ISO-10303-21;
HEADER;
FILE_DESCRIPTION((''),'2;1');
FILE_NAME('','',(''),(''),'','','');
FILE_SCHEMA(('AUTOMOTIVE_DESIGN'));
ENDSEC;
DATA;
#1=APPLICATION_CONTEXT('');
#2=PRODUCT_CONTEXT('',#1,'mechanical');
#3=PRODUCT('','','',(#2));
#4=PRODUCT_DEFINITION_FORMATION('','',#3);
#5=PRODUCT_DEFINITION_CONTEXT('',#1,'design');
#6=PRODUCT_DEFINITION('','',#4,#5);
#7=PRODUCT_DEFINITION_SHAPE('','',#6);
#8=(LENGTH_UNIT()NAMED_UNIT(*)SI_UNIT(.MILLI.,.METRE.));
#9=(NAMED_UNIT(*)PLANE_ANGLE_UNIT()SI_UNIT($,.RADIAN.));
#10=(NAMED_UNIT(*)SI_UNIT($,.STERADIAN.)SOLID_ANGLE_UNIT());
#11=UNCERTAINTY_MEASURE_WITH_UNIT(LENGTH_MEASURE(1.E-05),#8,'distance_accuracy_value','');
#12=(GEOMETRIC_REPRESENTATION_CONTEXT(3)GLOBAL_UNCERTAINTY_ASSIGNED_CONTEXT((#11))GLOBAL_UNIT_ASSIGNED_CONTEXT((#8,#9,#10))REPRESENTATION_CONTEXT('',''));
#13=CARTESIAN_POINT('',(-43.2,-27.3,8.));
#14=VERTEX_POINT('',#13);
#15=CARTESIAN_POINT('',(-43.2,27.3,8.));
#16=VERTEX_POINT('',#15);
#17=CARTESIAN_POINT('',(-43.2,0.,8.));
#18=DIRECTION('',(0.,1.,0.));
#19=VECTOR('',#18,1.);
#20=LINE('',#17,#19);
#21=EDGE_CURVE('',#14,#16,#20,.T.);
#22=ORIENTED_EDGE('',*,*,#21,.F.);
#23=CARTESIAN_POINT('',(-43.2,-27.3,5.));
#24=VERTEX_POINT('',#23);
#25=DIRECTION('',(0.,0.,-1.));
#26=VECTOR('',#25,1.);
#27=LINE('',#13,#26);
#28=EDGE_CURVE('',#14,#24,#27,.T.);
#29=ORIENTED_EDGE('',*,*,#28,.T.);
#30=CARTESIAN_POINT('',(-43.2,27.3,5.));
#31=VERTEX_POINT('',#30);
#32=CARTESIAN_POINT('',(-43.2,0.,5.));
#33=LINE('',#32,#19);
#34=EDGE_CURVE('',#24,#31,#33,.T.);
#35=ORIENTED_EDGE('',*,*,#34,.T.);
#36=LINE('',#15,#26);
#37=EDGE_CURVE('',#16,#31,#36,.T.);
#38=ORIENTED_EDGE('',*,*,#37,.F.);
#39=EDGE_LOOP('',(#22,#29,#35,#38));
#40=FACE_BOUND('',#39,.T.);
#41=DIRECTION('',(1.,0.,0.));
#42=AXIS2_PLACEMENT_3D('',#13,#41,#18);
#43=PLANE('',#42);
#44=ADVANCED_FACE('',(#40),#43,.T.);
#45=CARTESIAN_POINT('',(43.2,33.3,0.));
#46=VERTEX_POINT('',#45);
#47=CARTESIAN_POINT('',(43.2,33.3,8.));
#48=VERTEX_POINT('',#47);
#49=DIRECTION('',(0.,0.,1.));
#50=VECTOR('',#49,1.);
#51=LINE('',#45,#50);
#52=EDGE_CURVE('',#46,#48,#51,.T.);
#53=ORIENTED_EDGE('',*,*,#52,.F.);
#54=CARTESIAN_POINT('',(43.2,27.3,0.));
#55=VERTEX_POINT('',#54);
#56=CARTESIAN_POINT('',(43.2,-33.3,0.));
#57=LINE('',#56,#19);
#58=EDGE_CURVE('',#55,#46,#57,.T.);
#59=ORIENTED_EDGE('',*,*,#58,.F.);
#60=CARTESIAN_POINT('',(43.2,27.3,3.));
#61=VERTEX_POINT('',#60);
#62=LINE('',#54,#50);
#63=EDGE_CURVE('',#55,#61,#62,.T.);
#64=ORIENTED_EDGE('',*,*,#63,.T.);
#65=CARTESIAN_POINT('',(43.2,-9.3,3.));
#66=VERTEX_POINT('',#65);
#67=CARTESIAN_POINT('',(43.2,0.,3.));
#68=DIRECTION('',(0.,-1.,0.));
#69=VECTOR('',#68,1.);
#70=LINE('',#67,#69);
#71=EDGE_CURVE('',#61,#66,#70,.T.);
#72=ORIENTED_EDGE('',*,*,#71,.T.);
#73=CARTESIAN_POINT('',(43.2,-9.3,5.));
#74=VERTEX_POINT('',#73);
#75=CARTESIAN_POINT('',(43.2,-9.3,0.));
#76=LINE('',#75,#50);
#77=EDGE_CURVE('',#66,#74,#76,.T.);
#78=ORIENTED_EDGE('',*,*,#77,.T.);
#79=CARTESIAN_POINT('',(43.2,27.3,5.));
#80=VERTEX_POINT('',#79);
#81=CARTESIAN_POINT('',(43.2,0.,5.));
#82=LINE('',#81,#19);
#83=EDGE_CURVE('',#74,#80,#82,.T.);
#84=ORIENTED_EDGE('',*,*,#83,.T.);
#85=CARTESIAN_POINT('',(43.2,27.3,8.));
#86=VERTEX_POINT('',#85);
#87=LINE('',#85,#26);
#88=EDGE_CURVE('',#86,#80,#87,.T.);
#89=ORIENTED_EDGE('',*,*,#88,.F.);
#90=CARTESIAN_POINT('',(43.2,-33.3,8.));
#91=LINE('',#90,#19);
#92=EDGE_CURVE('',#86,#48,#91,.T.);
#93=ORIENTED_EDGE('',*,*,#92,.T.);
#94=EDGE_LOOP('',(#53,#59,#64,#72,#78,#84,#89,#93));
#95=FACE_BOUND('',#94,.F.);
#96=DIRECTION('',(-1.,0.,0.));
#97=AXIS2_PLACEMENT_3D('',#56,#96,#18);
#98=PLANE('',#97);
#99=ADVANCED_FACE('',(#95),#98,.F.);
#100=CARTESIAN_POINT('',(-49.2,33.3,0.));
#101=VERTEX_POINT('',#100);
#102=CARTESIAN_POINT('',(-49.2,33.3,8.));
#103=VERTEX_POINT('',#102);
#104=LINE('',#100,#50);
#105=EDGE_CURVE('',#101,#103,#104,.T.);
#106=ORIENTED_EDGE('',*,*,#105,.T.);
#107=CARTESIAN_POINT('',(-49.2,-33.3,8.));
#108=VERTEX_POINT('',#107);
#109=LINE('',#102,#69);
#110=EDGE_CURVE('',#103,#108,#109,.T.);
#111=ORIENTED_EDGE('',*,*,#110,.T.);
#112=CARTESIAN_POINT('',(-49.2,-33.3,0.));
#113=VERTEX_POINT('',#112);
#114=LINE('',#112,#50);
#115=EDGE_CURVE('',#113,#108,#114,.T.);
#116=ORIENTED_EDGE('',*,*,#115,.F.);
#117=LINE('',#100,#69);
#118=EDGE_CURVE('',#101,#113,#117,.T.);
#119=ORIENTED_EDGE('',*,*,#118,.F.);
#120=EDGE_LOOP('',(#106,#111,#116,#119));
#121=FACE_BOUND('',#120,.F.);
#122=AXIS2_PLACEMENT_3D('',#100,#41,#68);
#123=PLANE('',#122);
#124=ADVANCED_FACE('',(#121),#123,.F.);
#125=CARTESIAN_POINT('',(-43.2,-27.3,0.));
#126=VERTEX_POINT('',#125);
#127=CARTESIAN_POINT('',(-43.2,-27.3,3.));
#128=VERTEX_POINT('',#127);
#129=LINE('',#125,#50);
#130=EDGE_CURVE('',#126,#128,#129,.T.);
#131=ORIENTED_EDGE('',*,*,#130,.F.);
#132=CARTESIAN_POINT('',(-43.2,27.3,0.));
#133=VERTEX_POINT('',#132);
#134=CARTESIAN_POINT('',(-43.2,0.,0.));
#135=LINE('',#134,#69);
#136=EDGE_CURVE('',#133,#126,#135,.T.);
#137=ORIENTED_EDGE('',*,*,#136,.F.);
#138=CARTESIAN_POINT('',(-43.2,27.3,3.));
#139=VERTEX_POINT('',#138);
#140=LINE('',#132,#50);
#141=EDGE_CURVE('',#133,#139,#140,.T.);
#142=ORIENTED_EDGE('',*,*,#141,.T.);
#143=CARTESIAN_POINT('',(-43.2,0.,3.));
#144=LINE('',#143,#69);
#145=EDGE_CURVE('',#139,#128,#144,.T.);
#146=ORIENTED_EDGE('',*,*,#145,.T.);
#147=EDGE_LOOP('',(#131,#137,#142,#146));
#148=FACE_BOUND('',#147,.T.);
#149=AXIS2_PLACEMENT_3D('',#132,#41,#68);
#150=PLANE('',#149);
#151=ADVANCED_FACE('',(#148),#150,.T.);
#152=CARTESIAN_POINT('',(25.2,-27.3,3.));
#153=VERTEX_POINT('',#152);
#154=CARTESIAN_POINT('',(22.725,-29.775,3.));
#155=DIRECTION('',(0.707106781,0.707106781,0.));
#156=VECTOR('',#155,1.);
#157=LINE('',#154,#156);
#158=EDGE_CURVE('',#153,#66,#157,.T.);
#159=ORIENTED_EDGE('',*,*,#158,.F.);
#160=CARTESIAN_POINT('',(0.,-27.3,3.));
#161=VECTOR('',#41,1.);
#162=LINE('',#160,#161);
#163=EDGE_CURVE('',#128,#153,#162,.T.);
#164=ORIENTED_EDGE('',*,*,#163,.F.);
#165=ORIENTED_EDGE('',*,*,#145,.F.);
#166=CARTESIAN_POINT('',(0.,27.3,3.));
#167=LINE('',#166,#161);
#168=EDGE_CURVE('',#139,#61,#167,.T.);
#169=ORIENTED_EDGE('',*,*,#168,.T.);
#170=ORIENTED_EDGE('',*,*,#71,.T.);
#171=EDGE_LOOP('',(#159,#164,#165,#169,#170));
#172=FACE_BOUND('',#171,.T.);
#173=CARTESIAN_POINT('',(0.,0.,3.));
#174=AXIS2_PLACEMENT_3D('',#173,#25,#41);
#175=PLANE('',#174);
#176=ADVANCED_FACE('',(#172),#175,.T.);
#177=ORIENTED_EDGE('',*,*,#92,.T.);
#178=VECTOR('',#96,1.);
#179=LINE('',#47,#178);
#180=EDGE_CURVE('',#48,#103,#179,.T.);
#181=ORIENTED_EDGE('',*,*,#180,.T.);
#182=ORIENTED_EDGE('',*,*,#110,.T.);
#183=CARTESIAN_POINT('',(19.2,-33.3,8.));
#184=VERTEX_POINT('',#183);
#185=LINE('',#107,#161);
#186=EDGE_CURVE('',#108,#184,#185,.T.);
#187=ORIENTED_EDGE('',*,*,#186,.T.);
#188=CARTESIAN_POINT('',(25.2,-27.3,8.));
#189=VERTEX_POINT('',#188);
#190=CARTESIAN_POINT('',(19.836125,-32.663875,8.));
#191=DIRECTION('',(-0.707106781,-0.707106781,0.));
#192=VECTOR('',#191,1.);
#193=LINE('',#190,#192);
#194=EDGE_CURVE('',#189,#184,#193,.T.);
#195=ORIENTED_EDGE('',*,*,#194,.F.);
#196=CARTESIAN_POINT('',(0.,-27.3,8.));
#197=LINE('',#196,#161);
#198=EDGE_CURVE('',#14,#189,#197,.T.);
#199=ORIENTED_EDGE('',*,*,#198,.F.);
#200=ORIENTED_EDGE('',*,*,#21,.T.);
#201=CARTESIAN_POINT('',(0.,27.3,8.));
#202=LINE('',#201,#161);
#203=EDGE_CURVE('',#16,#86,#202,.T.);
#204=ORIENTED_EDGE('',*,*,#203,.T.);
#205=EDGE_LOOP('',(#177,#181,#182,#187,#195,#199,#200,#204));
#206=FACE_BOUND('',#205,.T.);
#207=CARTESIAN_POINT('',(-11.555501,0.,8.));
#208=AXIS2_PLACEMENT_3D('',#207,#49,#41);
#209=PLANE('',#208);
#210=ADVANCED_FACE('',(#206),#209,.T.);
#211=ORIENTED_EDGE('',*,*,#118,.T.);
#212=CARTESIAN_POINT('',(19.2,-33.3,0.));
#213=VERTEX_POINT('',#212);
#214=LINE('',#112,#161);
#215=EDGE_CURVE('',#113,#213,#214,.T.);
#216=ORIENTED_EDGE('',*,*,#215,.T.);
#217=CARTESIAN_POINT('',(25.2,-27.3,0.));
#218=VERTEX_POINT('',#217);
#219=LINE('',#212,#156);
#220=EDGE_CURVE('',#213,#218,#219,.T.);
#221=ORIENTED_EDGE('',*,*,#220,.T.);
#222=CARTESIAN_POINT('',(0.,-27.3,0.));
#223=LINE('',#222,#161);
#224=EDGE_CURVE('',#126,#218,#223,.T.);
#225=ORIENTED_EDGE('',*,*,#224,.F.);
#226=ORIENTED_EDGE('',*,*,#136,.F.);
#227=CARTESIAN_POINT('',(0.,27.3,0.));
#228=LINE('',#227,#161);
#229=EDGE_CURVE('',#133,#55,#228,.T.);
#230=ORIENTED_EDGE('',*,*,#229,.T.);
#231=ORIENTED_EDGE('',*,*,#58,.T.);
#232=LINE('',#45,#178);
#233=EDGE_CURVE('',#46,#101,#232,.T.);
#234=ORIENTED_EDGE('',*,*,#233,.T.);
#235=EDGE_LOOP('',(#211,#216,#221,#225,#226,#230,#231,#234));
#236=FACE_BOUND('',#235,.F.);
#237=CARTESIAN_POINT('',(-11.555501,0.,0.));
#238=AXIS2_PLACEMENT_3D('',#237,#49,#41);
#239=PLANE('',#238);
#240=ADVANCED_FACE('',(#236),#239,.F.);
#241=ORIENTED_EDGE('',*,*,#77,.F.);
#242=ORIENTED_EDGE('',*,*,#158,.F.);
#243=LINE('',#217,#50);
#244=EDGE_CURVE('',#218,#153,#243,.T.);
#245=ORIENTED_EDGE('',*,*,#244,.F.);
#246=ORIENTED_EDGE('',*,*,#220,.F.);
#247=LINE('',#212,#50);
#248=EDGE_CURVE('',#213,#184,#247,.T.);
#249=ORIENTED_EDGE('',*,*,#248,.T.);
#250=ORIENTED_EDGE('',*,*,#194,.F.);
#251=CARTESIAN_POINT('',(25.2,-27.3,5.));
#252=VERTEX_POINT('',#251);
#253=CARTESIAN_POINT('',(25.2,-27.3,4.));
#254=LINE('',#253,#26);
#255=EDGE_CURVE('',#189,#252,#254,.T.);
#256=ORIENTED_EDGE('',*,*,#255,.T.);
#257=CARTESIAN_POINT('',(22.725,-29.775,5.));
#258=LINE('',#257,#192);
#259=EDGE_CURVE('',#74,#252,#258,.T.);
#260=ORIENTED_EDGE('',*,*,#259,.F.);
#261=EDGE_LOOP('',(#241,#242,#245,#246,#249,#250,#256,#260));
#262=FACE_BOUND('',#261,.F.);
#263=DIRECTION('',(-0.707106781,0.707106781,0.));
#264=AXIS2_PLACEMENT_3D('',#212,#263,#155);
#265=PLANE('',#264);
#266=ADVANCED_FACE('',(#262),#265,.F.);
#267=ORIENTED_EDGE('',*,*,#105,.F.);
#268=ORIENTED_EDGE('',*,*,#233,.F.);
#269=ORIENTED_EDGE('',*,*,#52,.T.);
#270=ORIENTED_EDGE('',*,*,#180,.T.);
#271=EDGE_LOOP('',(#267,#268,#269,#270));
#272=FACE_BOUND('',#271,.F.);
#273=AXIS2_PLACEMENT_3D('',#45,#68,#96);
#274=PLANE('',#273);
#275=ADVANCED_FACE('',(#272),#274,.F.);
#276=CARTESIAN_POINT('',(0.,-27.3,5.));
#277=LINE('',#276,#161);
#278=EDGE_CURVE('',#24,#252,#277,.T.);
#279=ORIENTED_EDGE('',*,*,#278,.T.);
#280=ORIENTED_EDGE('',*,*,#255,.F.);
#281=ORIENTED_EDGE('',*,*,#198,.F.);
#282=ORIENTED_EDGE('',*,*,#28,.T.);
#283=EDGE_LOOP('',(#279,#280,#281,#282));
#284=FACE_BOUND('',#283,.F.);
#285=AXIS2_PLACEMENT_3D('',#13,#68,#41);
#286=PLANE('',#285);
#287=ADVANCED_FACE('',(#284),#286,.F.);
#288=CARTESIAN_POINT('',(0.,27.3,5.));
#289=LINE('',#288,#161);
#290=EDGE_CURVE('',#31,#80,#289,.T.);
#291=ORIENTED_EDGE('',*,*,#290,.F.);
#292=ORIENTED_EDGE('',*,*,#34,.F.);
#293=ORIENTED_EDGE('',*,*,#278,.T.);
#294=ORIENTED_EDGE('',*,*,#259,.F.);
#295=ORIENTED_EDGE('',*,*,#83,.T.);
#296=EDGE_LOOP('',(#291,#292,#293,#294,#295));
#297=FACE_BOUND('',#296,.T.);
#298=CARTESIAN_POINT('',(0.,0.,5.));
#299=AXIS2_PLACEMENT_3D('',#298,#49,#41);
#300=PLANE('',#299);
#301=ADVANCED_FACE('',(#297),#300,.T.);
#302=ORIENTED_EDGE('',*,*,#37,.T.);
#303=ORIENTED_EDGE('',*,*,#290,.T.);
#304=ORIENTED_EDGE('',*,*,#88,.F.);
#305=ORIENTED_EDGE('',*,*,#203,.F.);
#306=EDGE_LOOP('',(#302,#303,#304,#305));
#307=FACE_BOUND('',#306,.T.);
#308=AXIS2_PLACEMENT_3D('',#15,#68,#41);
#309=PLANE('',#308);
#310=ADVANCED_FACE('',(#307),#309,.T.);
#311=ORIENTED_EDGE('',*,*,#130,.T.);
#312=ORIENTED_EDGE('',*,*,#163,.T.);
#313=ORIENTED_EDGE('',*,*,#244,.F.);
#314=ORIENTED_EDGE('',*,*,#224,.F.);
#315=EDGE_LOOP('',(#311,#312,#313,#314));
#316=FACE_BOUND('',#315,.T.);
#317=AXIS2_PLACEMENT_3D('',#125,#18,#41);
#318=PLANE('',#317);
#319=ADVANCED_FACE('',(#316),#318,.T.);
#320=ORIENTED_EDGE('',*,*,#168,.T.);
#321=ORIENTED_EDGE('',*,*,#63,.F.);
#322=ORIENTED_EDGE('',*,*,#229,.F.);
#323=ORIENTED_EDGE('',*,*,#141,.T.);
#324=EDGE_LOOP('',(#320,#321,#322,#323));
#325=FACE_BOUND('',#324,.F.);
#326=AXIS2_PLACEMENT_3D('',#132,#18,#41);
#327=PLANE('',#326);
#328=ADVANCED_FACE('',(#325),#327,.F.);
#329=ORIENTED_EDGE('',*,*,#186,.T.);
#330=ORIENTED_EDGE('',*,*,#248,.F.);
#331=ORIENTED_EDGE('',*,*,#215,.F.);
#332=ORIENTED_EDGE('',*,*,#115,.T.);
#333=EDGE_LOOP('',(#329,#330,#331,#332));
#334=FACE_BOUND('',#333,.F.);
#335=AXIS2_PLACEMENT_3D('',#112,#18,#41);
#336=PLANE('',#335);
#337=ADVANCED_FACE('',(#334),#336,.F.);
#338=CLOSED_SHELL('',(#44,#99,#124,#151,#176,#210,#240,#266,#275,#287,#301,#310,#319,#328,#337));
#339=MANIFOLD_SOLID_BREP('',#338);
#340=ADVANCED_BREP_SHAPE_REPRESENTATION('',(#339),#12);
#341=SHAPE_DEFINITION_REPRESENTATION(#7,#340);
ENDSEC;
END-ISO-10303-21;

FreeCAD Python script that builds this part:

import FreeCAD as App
import Part
import Sketcher
from FreeCAD import Vector


def add_polygon(sketch, points):
    """Adds a closed chain of lines whose ends are joined by coincident constraints."""
    first, n = sketch.GeometryCount, len(points)
    for a, b in zip(points, points[1:] + points[:1]):
        sketch.addGeometry(Part.LineSegment(App.Vector(*a, 0), App.Vector(*b, 0)), False)
    for i in range(n):
        sketch.addConstraint(Sketcher.Constraint("Coincident", first + i, 2, first + (i + 1) % n, 1))

doc = App.newDocument("Part")
body = doc.addObject("PartDesign::Body", "Body")

# Sketch on XY plane
sketch1 = doc.addObject("Sketcher::SketchObject", "Sketch")
body.addObject(sketch1)
sketch1.AttachmentSupport = (doc.XY_Plane, [""])
sketch1.MapMode = "FlatFace"
add_polygon(sketch1, [(43, 33), (-49, 33), (-49, -33), (43, -33)])  # lines 0-3
sketch1.addConstraint([
    Sketcher.Constraint("Horizontal", 0),
    Sketcher.Constraint("Vertical", 1),
    Sketcher.Constraint("Horizontal", 2),
    Sketcher.Constraint("Vertical", 3),
    Sketcher.Constraint("DistanceX", 0, 2, 0, 1, 92.4),
    Sketcher.Constraint("DistanceY", 1, 2, 1, 1, 66.6),
    Sketcher.Constraint("DistanceX", 0, 2, -1, 1, 49.2),
    Sketcher.Constraint("DistanceY", -1, 1, 0, 2, 33.3),
])
pad1 = doc.addObject("PartDesign::Pad", "Pad")
body.addObject(pad1)
pad1.Profile = sketch1
pad1.Length = 8

# Sketch on XY plane
sketch2 = doc.addObject("Sketcher::SketchObject", "Sketch001")
body.addObject(sketch2)
sketch2.AttachmentSupport = (doc.XY_Plane, [""])
sketch2.MapMode = "FlatFace"
sketch2.AttachmentOffset = App.Placement(Vector(0, 0, 8), App.Rotation())
add_polygon(sketch2, [(-43, 27), (-43, -27), (43, -27), (43, 27)])  # lines 0-3
sketch2.addConstraint([
    Sketcher.Constraint("Vertical", 0),
    Sketcher.Constraint("Horizontal", 1),
    Sketcher.Constraint("Vertical", 2),
    Sketcher.Constraint("Horizontal", 3),
    Sketcher.Constraint("Symmetric", 0, 2, 2, 2, -1, 1),
    Sketcher.Constraint("DistanceX", 1, 1, 1, 2, 86.4),
    Sketcher.Constraint("DistanceY", 0, 2, 0, 1, 54.6),
])
pocket1 = doc.addObject("PartDesign::Pocket", "Pocket")
body.addObject(pocket1)
pocket1.Profile = sketch2
pocket1.Length = 3

# Sketch on XY plane
sketch3 = doc.addObject("Sketcher::SketchObject", "Sketch002")
body.addObject(sketch3)
sketch3.AttachmentSupport = (doc.XY_Plane, [""])
sketch3.MapMode = "FlatFace"
add_polygon(sketch3, [(-43, -27), (-43, 27), (43, 27), (43, -27)])  # lines 0-3
sketch3.addConstraint([
    Sketcher.Constraint("Vertical", 0),
    Sketcher.Constraint("Horizontal", 1),
    Sketcher.Constraint("Vertical", 2),
    Sketcher.Constraint("Horizontal", 3),
    Sketcher.Constraint("Symmetric", 0, 2, 2, 2, -1, 1),
    Sketcher.Constraint("DistanceX", 1, 1, 1, 2, 86.4),
    Sketcher.Constraint("DistanceY", 0, 1, 0, 2, 54.6),
])
pocket2 = doc.addObject("PartDesign::Pocket", "Pocket001")
body.addObject(pocket2)
pocket2.Profile = sketch3
pocket2.Length = 3
pocket2.Reversed = True

# Sketch on XY plane
sketch4 = doc.addObject("Sketcher::SketchObject", "Sketch003")
body.addObject(sketch4)
sketch4.AttachmentSupport = (doc.XY_Plane, [""])
sketch4.MapMode = "FlatFace"
add_polygon(sketch4, [(43, -33), (19, -33), (43, -9)])  # lines 0-2
sketch4.addConstraint([
    Sketcher.Constraint("Horizontal", 0),
    Sketcher.Constraint("Vertical", 2),
    Sketcher.Constraint("Equal", 0, 2),
    Sketcher.Constraint("DistanceX", 0, 2, 0, 1, 24.0),
    Sketcher.Constraint("DistanceX", -1, 1, 0, 2, 19.2),
    Sketcher.Constraint("DistanceY", 0, 2, -1, 1, 33.3),
])
pocket3 = doc.addObject("PartDesign::Pocket", "Pocket002")
body.addObject(pocket3)
pocket3.Profile = sketch4
pocket3.Length = 25
pocket3.Reversed = True

doc.recompute()
